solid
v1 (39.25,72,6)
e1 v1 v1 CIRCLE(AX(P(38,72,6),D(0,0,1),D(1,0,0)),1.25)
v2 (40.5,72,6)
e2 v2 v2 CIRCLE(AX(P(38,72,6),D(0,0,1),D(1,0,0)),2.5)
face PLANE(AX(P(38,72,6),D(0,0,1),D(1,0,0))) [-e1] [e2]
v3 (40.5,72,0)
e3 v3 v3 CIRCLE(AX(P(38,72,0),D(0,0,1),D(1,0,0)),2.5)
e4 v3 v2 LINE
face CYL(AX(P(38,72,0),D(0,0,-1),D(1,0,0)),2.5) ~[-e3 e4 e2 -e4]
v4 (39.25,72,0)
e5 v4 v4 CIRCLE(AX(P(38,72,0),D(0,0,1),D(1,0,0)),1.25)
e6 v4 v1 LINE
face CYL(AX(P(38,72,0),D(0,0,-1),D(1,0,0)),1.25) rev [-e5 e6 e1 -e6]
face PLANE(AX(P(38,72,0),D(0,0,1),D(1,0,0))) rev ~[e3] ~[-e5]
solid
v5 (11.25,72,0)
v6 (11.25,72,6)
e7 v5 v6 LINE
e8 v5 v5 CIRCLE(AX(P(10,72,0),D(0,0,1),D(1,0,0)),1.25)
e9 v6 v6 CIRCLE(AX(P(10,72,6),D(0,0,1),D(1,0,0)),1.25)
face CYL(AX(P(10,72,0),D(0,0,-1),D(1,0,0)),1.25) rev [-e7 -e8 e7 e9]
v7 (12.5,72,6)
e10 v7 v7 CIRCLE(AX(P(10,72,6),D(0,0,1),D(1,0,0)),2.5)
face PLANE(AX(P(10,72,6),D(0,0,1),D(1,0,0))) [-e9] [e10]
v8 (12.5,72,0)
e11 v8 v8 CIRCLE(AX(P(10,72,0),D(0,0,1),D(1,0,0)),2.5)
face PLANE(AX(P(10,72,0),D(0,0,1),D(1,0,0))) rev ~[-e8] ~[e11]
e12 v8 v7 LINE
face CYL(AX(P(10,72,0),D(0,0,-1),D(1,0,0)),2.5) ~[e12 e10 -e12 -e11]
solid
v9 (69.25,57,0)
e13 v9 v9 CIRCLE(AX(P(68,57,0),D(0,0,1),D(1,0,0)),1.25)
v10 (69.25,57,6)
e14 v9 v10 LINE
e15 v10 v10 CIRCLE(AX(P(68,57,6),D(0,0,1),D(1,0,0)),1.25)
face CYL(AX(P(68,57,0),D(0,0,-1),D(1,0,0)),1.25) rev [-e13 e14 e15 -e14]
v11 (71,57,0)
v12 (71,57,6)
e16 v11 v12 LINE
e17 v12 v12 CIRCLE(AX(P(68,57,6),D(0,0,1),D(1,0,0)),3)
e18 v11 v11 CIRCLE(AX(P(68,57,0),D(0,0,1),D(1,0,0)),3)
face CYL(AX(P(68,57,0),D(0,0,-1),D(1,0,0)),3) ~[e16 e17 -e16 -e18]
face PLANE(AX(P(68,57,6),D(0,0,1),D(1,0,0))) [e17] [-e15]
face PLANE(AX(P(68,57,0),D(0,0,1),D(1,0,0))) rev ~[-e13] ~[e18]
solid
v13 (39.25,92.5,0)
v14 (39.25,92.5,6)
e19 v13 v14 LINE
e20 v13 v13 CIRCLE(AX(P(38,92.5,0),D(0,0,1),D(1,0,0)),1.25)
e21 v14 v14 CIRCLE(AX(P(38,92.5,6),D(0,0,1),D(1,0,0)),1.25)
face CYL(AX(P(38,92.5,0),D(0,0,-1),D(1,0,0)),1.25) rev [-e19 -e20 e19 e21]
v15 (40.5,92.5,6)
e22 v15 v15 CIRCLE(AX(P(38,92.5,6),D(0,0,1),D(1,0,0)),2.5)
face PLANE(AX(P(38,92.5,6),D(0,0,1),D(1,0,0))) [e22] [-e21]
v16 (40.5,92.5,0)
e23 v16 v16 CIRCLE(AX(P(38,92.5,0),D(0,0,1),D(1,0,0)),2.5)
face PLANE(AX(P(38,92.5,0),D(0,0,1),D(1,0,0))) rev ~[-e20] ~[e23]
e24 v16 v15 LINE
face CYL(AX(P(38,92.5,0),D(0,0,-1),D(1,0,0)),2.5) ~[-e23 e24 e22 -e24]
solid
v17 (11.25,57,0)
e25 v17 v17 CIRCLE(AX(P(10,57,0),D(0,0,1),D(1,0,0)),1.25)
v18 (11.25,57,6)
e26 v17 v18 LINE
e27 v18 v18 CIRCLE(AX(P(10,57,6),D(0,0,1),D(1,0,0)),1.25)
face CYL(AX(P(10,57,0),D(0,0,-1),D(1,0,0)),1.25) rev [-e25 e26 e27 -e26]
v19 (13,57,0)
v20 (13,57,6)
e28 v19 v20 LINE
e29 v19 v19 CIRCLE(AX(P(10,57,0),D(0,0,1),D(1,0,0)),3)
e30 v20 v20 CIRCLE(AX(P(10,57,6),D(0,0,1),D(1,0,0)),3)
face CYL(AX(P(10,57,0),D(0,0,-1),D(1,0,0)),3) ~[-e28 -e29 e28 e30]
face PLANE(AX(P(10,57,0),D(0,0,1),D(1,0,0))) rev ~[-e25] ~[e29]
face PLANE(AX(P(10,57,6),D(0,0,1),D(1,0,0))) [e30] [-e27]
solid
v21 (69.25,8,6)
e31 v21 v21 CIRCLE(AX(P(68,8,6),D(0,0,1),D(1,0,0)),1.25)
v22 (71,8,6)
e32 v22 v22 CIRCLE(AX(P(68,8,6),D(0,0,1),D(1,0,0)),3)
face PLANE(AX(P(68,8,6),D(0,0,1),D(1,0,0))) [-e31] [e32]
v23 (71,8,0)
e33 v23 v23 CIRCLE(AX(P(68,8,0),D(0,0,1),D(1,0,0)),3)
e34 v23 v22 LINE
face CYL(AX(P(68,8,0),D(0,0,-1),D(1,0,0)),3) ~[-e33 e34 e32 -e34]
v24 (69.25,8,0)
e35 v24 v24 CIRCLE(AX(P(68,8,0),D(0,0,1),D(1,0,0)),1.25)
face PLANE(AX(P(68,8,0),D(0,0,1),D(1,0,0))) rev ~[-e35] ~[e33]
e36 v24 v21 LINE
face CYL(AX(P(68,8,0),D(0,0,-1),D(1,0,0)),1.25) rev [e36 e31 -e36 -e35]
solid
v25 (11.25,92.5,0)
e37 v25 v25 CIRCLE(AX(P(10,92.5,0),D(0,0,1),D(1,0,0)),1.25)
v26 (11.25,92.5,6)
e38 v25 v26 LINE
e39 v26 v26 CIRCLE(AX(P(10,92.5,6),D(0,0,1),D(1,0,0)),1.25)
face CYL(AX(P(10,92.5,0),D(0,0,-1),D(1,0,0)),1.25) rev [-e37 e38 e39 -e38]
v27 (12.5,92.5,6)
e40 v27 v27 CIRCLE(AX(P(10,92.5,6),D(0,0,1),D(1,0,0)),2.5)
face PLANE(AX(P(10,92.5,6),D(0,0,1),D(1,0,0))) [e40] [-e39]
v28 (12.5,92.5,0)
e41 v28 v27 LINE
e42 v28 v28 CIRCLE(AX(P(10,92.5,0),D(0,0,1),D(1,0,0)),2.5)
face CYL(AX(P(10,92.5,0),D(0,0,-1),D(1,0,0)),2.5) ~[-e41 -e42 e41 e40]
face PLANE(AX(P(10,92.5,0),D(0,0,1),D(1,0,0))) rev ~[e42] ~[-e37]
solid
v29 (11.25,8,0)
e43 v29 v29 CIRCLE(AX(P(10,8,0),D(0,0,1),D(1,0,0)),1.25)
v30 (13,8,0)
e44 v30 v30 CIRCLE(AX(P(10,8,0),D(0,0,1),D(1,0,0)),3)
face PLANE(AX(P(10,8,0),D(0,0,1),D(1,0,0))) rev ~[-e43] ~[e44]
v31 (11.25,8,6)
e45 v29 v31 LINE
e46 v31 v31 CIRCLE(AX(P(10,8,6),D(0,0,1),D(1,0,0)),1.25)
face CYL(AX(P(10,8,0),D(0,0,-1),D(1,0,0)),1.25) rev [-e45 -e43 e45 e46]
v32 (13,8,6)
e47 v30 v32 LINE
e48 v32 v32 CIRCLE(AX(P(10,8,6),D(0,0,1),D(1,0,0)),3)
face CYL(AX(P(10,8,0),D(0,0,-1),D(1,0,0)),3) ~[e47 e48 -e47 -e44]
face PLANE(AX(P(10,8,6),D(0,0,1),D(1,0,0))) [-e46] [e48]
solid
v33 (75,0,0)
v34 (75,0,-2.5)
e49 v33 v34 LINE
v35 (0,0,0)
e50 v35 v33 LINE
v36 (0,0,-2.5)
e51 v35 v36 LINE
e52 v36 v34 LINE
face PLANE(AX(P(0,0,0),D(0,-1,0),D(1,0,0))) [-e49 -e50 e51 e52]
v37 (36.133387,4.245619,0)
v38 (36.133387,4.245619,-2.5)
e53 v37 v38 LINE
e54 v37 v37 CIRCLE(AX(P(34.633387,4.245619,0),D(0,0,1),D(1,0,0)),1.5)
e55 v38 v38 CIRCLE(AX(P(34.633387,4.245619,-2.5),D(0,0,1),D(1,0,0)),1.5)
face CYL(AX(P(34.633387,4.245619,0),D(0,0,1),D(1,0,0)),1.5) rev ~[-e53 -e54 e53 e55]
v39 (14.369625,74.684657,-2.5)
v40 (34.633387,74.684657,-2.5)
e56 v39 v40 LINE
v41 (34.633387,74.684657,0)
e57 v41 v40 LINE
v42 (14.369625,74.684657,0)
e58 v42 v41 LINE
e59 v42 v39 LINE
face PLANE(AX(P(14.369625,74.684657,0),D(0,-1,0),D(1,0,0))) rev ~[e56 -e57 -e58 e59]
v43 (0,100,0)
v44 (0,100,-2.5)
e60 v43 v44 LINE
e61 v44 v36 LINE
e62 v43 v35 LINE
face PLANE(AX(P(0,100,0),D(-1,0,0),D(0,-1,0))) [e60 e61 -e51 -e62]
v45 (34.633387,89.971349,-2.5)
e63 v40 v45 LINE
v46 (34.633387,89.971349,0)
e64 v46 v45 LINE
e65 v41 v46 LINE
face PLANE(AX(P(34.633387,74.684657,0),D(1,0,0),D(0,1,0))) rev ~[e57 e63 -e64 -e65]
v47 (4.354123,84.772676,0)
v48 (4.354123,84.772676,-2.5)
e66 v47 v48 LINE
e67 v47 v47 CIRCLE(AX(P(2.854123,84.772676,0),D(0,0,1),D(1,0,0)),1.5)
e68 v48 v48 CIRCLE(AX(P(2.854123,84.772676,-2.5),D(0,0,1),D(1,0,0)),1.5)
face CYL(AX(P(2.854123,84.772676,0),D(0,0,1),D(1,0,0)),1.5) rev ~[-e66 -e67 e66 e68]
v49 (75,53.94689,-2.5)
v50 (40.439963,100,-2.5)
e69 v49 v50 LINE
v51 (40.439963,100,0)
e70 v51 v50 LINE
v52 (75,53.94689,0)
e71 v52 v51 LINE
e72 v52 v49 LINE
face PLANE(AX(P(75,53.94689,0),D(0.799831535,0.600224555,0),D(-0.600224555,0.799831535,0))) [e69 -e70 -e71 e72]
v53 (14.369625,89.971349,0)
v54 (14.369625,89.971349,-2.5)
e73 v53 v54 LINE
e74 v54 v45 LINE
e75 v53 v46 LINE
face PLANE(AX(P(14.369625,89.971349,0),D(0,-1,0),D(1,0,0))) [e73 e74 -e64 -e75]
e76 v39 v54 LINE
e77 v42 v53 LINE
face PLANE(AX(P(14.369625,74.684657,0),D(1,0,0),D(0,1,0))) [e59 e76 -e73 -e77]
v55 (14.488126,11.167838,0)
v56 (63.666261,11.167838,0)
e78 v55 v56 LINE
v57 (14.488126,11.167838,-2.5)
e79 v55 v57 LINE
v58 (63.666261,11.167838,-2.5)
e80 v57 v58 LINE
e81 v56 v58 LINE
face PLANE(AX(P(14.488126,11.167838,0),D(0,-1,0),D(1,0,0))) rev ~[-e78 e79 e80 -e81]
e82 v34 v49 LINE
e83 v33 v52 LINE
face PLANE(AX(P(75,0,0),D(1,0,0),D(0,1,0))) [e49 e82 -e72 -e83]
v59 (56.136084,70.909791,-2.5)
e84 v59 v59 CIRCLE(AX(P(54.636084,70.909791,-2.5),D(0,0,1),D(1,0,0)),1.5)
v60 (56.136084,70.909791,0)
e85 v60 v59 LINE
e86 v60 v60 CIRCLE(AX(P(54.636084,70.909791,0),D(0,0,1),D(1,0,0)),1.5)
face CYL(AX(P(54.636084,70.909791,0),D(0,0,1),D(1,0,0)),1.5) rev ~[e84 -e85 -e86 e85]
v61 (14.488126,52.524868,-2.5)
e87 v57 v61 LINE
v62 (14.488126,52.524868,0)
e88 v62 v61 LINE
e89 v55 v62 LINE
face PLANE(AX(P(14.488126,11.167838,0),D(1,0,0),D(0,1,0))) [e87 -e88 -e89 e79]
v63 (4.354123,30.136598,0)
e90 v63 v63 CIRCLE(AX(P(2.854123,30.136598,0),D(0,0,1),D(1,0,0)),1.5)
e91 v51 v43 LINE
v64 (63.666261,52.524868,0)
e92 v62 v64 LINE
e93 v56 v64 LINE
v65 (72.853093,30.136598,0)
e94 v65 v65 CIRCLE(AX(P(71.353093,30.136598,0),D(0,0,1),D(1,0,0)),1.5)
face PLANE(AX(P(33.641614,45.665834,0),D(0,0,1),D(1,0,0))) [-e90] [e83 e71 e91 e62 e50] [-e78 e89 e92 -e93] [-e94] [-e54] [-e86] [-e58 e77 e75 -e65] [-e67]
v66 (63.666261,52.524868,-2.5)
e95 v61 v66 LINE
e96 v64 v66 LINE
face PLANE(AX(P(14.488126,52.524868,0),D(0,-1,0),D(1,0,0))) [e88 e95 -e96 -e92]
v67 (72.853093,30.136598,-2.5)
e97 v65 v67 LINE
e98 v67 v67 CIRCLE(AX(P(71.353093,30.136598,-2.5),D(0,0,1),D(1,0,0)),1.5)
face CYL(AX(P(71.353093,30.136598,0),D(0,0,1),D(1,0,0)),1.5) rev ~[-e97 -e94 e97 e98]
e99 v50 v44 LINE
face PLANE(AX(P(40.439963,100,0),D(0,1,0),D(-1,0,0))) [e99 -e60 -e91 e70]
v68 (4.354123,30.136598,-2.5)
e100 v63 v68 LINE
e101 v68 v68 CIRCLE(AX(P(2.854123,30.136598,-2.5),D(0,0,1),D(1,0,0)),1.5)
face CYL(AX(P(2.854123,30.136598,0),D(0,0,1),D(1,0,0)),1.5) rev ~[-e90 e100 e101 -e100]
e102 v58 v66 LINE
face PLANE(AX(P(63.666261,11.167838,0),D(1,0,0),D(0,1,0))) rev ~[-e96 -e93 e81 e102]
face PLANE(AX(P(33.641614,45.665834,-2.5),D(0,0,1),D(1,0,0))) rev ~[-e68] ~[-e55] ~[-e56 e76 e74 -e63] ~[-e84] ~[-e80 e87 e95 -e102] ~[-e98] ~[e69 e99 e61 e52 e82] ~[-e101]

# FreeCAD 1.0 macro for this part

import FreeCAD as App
import Part
import Sketcher
from FreeCAD import Vector
Q = App.Units.Quantity

doc = App.newDocument("Part")
body = doc.addObject("PartDesign::Body", "Body")
body.AllowCompound = True

# Sketch on XY plane
sketch1 = body.newObject("Sketcher::SketchObject", "Sketch")
sketch1.AttachmentSupport = (doc.getObject("XY_Plane"), [""])
sketch1.MapMode = "FlatFace"
sketch1.addGeometry([
    Part.Circle(Vector(10, 8, 0), Vector(0, 0, 1), 3),  # 0
    Part.Circle(Vector(10, 8, 0), Vector(0, 0, 1), 1.2),  # 1
    Part.Circle(Vector(10, 57, 0), Vector(0, 0, 1), 3),  # 2
    Part.Circle(Vector(10, 57, 0), Vector(0, 0, 1), 1.2),  # 3
    Part.Circle(Vector(68, 8, 0), Vector(0, 0, 1), 3),  # 4
    Part.Circle(Vector(68, 8, 0), Vector(0, 0, 1), 1.2),  # 5
    Part.Circle(Vector(68, 57, 0), Vector(0, 0, 1), 3),  # 6
    Part.Circle(Vector(68, 57, 0), Vector(0, 0, 1), 1.2),  # 7
    Part.Circle(Vector(10, 72, 0), Vector(0, 0, 1), 2.5),  # 8
    Part.Circle(Vector(10, 72, 0), Vector(0, 0, 1), 1.2),  # 9
    Part.Circle(Vector(10, 92.5, 0), Vector(0, 0, 1), 2.5),  # 10
    Part.Circle(Vector(10, 92.5, 0), Vector(0, 0, 1), 1.2),  # 11
    Part.Circle(Vector(38, 72, 0), Vector(0, 0, 1), 2.5),  # 12
    Part.Circle(Vector(38, 72, 0), Vector(0, 0, 1), 1.2),  # 13
    Part.Circle(Vector(38, 92.5, 0), Vector(0, 0, 1), 2.5),  # 14
    Part.Circle(Vector(38, 92.5, 0), Vector(0, 0, 1), 1.2),  # 15
], False)
sketch1.addConstraint([
    Sketcher.Constraint("Coincident", 1, 3, 0, 3),
    Sketcher.Constraint("Coincident", 3, 3, 2, 3),
    Sketcher.Constraint("Coincident", 5, 3, 4, 3),
    Sketcher.Constraint("Coincident", 7, 3, 6, 3),
    Sketcher.Constraint("Coincident", 9, 3, 8, 3),
    Sketcher.Constraint("Coincident", 11, 3, 10, 3),
    Sketcher.Constraint("Coincident", 13, 3, 12, 3),
    Sketcher.Constraint("Coincident", 15, 3, 14, 3),
    Sketcher.Constraint("Equal", 0, 2),
    Sketcher.Constraint("Equal", 1, 3),
    Sketcher.Constraint("Equal", 2, 4),
    Sketcher.Constraint("Equal", 3, 5),
    Sketcher.Constraint("Equal", 4, 6),
    Sketcher.Constraint("Equal", 5, 7),
    Sketcher.Constraint("Equal", 7, 9),
    Sketcher.Constraint("Equal", 8, 10),
    Sketcher.Constraint("Equal", 9, 11),
    Sketcher.Constraint("Equal", 10, 12),
    Sketcher.Constraint("Equal", 11, 13),
    Sketcher.Constraint("Equal", 12, 14),
    Sketcher.Constraint("Equal", 13, 15),
    Sketcher.Constraint("Horizontal", 1, 3, 4, 3),
    Sketcher.Constraint("Horizontal", 3, 3, 6, 3),
    Sketcher.Constraint("Horizontal", 9, 3, 12, 3),
    Sketcher.Constraint("Horizontal", 11, 3, 14, 3),
    Sketcher.Constraint("Vertical", 1, 3, 2, 3),
    Sketcher.Constraint("Vertical", 5, 3, 6, 3),
    Sketcher.Constraint("Vertical", 3, 3, 8, 3),
    Sketcher.Constraint("Vertical", 9, 3, 10, 3),
    Sketcher.Constraint("Vertical", 13, 3, 14, 3),
    Sketcher.Constraint("Diameter", 0, Q("6 mm")),
    Sketcher.Constraint("Diameter", 8, Q("5 mm")),
    Sketcher.Constraint("Diameter", 1, Q("2.5 mm")),
    Sketcher.Constraint("DistanceX", -1, 1, 0, 3, Q("10 mm")),
    Sketcher.Constraint("DistanceY", -1, 1, 0, 3, Q("8 mm")),
    Sketcher.Constraint("DistanceY", -1, 1, 2, 3, Q("57 mm")),
    Sketcher.Constraint("DistanceX", -1, 1, 4, 3, Q("68 mm")),
    Sketcher.Constraint("DistanceY", -1, 1, 8, 3, Q("72 mm")),
    Sketcher.Constraint("DistanceX", -1, 1, 12, 3, Q("38 mm")),
    Sketcher.Constraint("DistanceY", -1, 1, 10, 3, Q("92.5 mm")),
])
pad1 = body.newObject("PartDesign::Pad", "Pad")
pad1.Profile = sketch1
pad1.Length = 6
body2 = doc.addObject("PartDesign::Body", "Body001")

# Sketch on XY plane
sketch2 = body2.newObject("Sketcher::SketchObject", "Sketch001")
sketch2.AttachmentSupport = (doc.getObject("XY_Plane001"), [""])
sketch2.MapMode = "FlatFace"
sketch2.addGeometry([
    Part.LineSegment(Vector(0, 100, 0), Vector(0, 0, 0)),  # 0
    Part.LineSegment(Vector(0, 0, 0), Vector(75, 0, 0)),  # 1
    Part.LineSegment(Vector(75, 0, 0), Vector(75, 54, 0)),  # 2
    Part.LineSegment(Vector(75, 54, 0), Vector(40, 100, 0)),  # 3
    Part.LineSegment(Vector(40, 100, 0), Vector(0, 100, 0)),  # 4
], False)
sketch2.addConstraint([
    Sketcher.Constraint("Coincident", 0, 2, 1, 1),
    Sketcher.Constraint("Coincident", 1, 2, 2, 1),
    Sketcher.Constraint("Coincident", 2, 2, 3, 1),
    Sketcher.Constraint("Coincident", 3, 2, 4, 1),
    Sketcher.Constraint("Coincident", 4, 2, 0, 1),
    Sketcher.Constraint("Vertical", 0),
    Sketcher.Constraint("Horizontal", 1),
    Sketcher.Constraint("Vertical", 2),
    Sketcher.Constraint("Horizontal", 4),
    Sketcher.Constraint("Coincident", 0, 2, -1, 1),
    Sketcher.Constraint("DistanceX", 1, 1, 1, 2, Q("75 mm")),
    Sketcher.Constraint("DistanceY", 0, 2, 0, 1, Q("100 mm")),
    Sketcher.Constraint("DistanceY", 2, 1, 2, 2, Q("53.94689 mm")),
    Sketcher.Constraint("DistanceX", 4, 2, 4, 1, Q("40.439963 mm")),
])
pad2 = body2.newObject("PartDesign::Pad", "Pad001")
pad2.Profile = sketch2
pad2.Length = 2.5
pad2.Reversed = True

# Sketch on XY plane
sketch3 = body2.newObject("Sketcher::SketchObject", "Sketch002")
sketch3.AttachmentSupport = (doc.getObject("XY_Plane001"), [""])
sketch3.MapMode = "FlatFace"
sketch3.addGeometry([
    Part.LineSegment(Vector(14, 53, 0), Vector(14, 11, 0)),  # 0
    Part.LineSegment(Vector(14, 11, 0), Vector(64, 11, 0)),  # 1
    Part.LineSegment(Vector(64, 11, 0), Vector(64, 53, 0)),  # 2
    Part.LineSegment(Vector(64, 53, 0), Vector(14, 53, 0)),  # 3
    Part.LineSegment(Vector(14, 90, 0), Vector(14, 75, 0)),  # 4
    Part.LineSegment(Vector(14, 75, 0), Vector(35, 75, 0)),  # 5
    Part.LineSegment(Vector(35, 75, 0), Vector(35, 90, 0)),  # 6
    Part.LineSegment(Vector(35, 90, 0), Vector(14, 90, 0)),  # 7
], False)
sketch3.addConstraint([
    Sketcher.Constraint("Coincident", 0, 2, 1, 1),
    Sketcher.Constraint("Coincident", 1, 2, 2, 1),
    Sketcher.Constraint("Coincident", 2, 2, 3, 1),
    Sketcher.Constraint("Coincident", 3, 2, 0, 1),
    Sketcher.Constraint("Coincident", 4, 2, 5, 1),
    Sketcher.Constraint("Coincident", 5, 2, 6, 1),
    Sketcher.Constraint("Coincident", 6, 2, 7, 1),
    Sketcher.Constraint("Coincident", 7, 2, 4, 1),
    Sketcher.Constraint("Vertical", 0),
    Sketcher.Constraint("Horizontal", 1),
    Sketcher.Constraint("Vertical", 2),
    Sketcher.Constraint("Horizontal", 3),
    Sketcher.Constraint("Vertical", 4),
    Sketcher.Constraint("Horizontal", 5),
    Sketcher.Constraint("Vertical", 6),
    Sketcher.Constraint("Horizontal", 7),
    Sketcher.Constraint("DistanceX", 5, 1, 5, 2, Q("20.263761 mm")),
    Sketcher.Constraint("DistanceY", 0, 2, 0, 1, Q("41.35703 mm")),
    Sketcher.Constraint("DistanceX", 4, 2, 3, 2, Q("0.118501 mm")),
    Sketcher.Constraint("DistanceX", 1, 1, 1, 2, Q("49.178135 mm")),
    Sketcher.Constraint("DistanceY", 4, 2, 4, 1, Q("15.286692 mm")),
    Sketcher.Constraint("DistanceX", -1, 1, 1, 2, Q("63.666261 mm")),
    Sketcher.Constraint("DistanceY", -1, 1, 6, 2, Q("89.971349 mm")),
    Sketcher.Constraint("DistanceY", 3, 2, 4, 2, Q("22.159789 mm")),
])
pocket1 = body2.newObject("PartDesign::Pocket", "Pocket")
pocket1.Profile = sketch3
pocket1.Length = 25

# Sketch on XY plane
sketch4 = body2.newObject("Sketcher::SketchObject", "Sketch003")
sketch4.AttachmentSupport = (doc.getObject("XY_Plane001"), [""])
sketch4.MapMode = "FlatFace"
sketch4.addGeometry([
    Part.Circle(Vector(2.9, 84.8, 0), Vector(0, 0, 1), 1.5),  # 0
    Part.Circle(Vector(2.9, 30.1, 0), Vector(0, 0, 1), 1.5),  # 1
    Part.Circle(Vector(54.6, 70.9, 0), Vector(0, 0, 1), 1.5),  # 2
    Part.Circle(Vector(71.4, 30.1, 0), Vector(0, 0, 1), 1.5),  # 3
    Part.Circle(Vector(34.6, 4.2, 0), Vector(0, 0, 1), 1.5),  # 4
], False)
sketch4.addConstraint([
    Sketcher.Constraint("Equal", 0, 1),
    Sketcher.Constraint("Equal", 1, 2),
    Sketcher.Constraint("Equal", 2, 3),
    Sketcher.Constraint("Equal", 3, 4),
    Sketcher.Constraint("Horizontal", 1, 3, 3, 3),
    Sketcher.Constraint("Vertical", 0, 3, 1, 3),
    Sketcher.Constraint("Diameter", 0, Q("3 mm")),
    Sketcher.Constraint("DistanceY", -1, 1, 2, 3, Q("70.909791 mm")),
    Sketcher.Constraint("DistanceY", -1, 1, 4, 3, Q("4.245619 mm")),
    Sketcher.Constraint("DistanceY", 1, 3, 0, 3, Q("54.636078 mm")),
    Sketcher.Constraint("DistanceX", 0, 3, 2, 3, Q("51.781961 mm")),
    Sketcher.Constraint("DistanceX", 2, 3, 3, 3, Q("16.717009 mm")),
    Sketcher.Constraint("DistanceY", 4, 3, 1, 3, Q("25.890979 mm")),
    Sketcher.Constraint("DistanceX", -1, 1, 0, 3, Q("2.854123 mm")),
    Sketcher.Constraint("DistanceX", -1, 1, 4, 3, Q("34.633387 mm")),
])
pocket2 = body2.newObject("PartDesign::Pocket", "Pocket001")
pocket2.Profile = sketch4
pocket2.Length = 25

doc.recompute()
